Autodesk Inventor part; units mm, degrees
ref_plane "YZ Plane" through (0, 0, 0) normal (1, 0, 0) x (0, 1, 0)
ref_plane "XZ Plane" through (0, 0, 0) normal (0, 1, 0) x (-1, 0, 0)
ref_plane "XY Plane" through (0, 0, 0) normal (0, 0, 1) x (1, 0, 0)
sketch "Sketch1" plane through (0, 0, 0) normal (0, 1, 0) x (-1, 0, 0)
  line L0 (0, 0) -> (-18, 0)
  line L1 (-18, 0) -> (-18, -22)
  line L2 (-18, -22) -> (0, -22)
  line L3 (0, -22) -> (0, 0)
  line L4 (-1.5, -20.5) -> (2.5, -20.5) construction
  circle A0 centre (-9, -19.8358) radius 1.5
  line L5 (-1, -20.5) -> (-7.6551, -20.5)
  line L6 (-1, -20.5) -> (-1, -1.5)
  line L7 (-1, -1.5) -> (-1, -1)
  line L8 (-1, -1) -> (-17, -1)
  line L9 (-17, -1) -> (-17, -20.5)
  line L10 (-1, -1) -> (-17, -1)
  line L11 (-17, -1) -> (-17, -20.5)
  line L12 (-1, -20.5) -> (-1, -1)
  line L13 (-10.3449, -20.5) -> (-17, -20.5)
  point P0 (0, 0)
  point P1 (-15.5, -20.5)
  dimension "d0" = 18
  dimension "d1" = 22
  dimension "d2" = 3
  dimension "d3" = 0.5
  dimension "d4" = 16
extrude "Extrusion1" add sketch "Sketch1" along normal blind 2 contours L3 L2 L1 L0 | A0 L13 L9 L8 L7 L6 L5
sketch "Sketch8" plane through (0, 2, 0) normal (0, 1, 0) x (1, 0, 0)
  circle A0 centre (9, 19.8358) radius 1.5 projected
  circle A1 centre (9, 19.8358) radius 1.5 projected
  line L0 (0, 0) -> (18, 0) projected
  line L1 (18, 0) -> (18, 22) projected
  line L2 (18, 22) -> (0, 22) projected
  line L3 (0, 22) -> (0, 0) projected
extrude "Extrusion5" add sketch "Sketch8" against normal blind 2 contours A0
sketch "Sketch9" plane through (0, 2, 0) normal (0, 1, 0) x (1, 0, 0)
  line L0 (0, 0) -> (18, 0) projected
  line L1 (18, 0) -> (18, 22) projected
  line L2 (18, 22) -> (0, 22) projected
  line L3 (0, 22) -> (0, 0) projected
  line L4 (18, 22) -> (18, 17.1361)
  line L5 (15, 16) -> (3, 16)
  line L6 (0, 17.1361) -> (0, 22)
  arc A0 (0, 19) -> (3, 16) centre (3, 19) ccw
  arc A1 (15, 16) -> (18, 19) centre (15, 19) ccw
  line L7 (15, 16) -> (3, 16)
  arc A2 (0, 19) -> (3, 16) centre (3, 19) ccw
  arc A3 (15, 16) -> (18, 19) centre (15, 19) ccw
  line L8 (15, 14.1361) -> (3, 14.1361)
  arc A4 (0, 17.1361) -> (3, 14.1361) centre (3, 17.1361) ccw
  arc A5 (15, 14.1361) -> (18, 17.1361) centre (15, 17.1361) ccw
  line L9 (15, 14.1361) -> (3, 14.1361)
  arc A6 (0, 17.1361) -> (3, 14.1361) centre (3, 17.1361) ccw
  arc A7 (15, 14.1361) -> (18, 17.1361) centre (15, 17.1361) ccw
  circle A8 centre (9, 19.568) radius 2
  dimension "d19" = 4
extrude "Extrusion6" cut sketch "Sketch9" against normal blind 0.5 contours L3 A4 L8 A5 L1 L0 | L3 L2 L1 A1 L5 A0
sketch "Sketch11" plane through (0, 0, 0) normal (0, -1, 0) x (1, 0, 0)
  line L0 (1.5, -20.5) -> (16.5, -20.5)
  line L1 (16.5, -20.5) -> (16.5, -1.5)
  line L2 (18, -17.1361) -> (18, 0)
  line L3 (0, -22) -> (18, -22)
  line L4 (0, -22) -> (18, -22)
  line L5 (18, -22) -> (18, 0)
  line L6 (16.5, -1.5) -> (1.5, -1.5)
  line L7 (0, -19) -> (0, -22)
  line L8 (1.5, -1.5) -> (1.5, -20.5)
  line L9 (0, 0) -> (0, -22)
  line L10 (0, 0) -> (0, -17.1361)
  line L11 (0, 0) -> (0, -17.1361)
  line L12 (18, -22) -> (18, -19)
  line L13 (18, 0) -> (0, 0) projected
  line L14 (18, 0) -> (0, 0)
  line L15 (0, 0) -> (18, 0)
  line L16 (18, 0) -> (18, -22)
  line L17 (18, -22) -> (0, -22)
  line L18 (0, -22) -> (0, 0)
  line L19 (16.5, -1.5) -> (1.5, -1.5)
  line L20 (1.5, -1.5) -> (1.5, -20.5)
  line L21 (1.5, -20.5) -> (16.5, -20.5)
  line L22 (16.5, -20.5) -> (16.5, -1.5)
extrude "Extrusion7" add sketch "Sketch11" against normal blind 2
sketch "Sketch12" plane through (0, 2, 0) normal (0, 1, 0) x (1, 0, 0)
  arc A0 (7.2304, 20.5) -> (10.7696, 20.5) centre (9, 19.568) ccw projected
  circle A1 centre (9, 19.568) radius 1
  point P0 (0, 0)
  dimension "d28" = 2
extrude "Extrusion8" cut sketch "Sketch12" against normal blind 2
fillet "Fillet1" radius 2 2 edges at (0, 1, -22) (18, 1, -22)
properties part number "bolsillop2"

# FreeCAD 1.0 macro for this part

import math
import FreeCAD as App
import Part
import Sketcher

V = App.Vector


def edges_at(feature, points):
    """Names of the edges that pass closest to the given points."""
    edges = feature.Shape.Edges
    near = lambda p: min(range(len(edges)), key=lambda i: edges[i].distToShape(Part.Vertex(*p))[0])
    return sorted({f"Edge{near(p) + 1}" for p in points})

doc = App.newDocument("Part")
params = doc.addObject("Spreadsheet::Sheet", "Params")
for row, (alias, value) in enumerate([
    ("sketch1_diameter", "3 mm"),
    ("sketch1_width", "18 mm"),
    ("sketch1_height", "22 mm"),
    ("pad1_length", "2 mm"),
    ("sketch2_diameter", "3 mm"),
    ("pad2_length", "2 mm"),
    ("sketch3_diameter", "4 mm"),
    ("sketch3_radius", "3 mm"),
    ("sketch3_width", "18 mm"),
    ("sketch3_height", "3 mm"),
    ("pocket1_length", "0.5 mm"),
    ("sketch4_width", "18 mm"),
    ("sketch4_width2", "15 mm"),
    ("sketch4_height", "22 mm"),
    ("sketch4_height2", "19 mm"),
    ("pad3_length", "2 mm"),
    ("sketch5_diameter", "2 mm"),
    ("pocket2_length", "2 mm"),
    ("fillet_radius", "2 mm"),
], start=1):
    params.set(f"A{row}", alias)
    params.set(f"B{row}", "=" + value)
    params.setAlias(f"B{row}", alias)

body = doc.addObject("PartDesign::Body", "Body")

# Sketch on XZ plane
sketch1 = body.newObject("Sketcher::SketchObject", "Sketch")
sketch1.AttachmentSupport = (doc.getObject("XZ_Plane"), [""])
sketch1.MapMode = "FlatFace"
sketch1.addGeometry(Part.LineSegment(V(0, -22, 0), V(0, 0, 0)), False)
sketch1.addGeometry(Part.LineSegment(V(0, 0, 0), V(18, 0, 0)), False)
sketch1.addGeometry(Part.LineSegment(V(18, 0, 0), V(18, -22, 0)), False)
sketch1.addGeometry(Part.LineSegment(V(18, -22, 0), V(0, -22, 0)), False)
sketch1.addGeometry(Part.Circle(V(9, -19.8, 0), V(0, 0, 1), 1.5), False)
sketch1.addConstraint(Sketcher.Constraint("Coincident", 0, 2, 1, 1))
sketch1.addConstraint(Sketcher.Constraint("Coincident", 1, 2, 2, 1))
sketch1.addConstraint(Sketcher.Constraint("Coincident", 2, 2, 3, 1))
sketch1.addConstraint(Sketcher.Constraint("Coincident", 3, 2, 0, 1))
sketch1.addConstraint(Sketcher.Constraint("Vertical", 0))
sketch1.addConstraint(Sketcher.Constraint("Horizontal", 1))
sketch1.addConstraint(Sketcher.Constraint("Vertical", 2))
sketch1.addConstraint(Sketcher.Constraint("Horizontal", 3))
sketch1.addConstraint(Sketcher.Constraint("Coincident", 0, 2, -1, 1))
sketch1.addConstraint(Sketcher.Constraint("Diameter", 4, 3.0))
sketch1.addConstraint(Sketcher.Constraint("DistanceX", 1, 1, 1, 2, 18.0))
sketch1.addConstraint(Sketcher.Constraint("DistanceY", 0, 1, 0, 2, 22.0))
sketch1.addConstraint(Sketcher.Constraint("DistanceX", -1, 1, 4, 3, 9.0))
sketch1.addConstraint(Sketcher.Constraint("DistanceY", 4, 3, -1, 1, 19.8358))
sketch1.setExpression("Constraints[9]", "Params.sketch1_diameter")
sketch1.setExpression("Constraints[10]", "Params.sketch1_width")
sketch1.setExpression("Constraints[11]", "Params.sketch1_height")
pad1 = body.newObject("PartDesign::Pad", "Pad")
pad1.Profile = sketch1
pad1.setExpression("Length", "Params.pad1_length")
pad1.Reversed = True

# Sketch on XZ plane
sketch2 = body.newObject("Sketcher::SketchObject", "Sketch001")
sketch2.AttachmentSupport = (doc.getObject("XZ_Plane"), [""])
sketch2.MapMode = "FlatFace"
sketch2.AttachmentOffset = App.Placement(V(0, 0, -2), App.Rotation())
sketch2.addGeometry(Part.Circle(V(9, -19.8, 0), V(0, 0, 1), 1.5), False)
sketch2.addConstraint(Sketcher.Constraint("Diameter", 0, 3.0))
sketch2.addConstraint(Sketcher.Constraint("DistanceX", -1, 1, 0, 3, 9.0))
sketch2.addConstraint(Sketcher.Constraint("DistanceY", 0, 3, -1, 1, 19.8358))
sketch2.setExpression("Constraints[0]", "Params.sketch2_diameter")
pad2 = body.newObject("PartDesign::Pad", "Pad001")
pad2.Profile = sketch2
pad2.setExpression("Length", "Params.pad2_length")

# Sketch on XZ plane
sketch3 = body.newObject("Sketcher::SketchObject", "Sketch002")
sketch3.AttachmentSupport = (doc.getObject("XZ_Plane"), [""])
sketch3.MapMode = "FlatFace"
sketch3.AttachmentOffset = App.Placement(V(0, 0, -2), App.Rotation())
sketch3.addGeometry(Part.LineSegment(V(0, -17.1, 0), V(0, 0, 0)), False)
sketch3.addGeometry(Part.LineSegment(V(0, 0, 0), V(18, 0, 0)), False)
sketch3.addGeometry(Part.LineSegment(V(18, 0, 0), V(18, -17.1, 0)), False)
sketch3.addGeometry(Part.ArcOfCircle(Part.Circle(V(15, -17.1, 0), V(0, 0, 1), 3), math.radians(0), math.radians(90)), False)
sketch3.addGeometry(Part.LineSegment(V(15, -14.1, 0), V(3, -14.1, 0)), False)
sketch3.addGeometry(Part.ArcOfCircle(Part.Circle(V(3, -17.1, 0), V(0, 0, 1), 3), math.radians(90), math.radians(180)), False)
sketch3.addGeometry(Part.LineSegment(V(0, -22, 0), V(0, -19, 0)), False)
sketch3.addGeometry(Part.ArcOfCircle(Part.Circle(V(3, -19, 0), V(0, 0, 1), 3), math.radians(90), math.radians(180)), False)
sketch3.addGeometry(Part.LineSegment(V(3, -16, 0), V(15, -16, 0)), False)
sketch3.addGeometry(Part.ArcOfCircle(Part.Circle(V(15, -19, 0), V(0, 0, 1), 3), math.radians(0), math.radians(90)), False)
sketch3.addGeometry(Part.LineSegment(V(18, -19, 0), V(18, -22, 0)), False)
sketch3.addGeometry(Part.LineSegment(V(18, -22, 0), V(0, -22, 0)), False)
sketch3.addGeometry(Part.Circle(V(9, -19.6, 0), V(0, 0, 1), 2), False)
sketch3.addConstraint(Sketcher.Constraint("Coincident", 0, 2, 1, 1))
sketch3.addConstraint(Sketcher.Constraint("Coincident", 1, 2, 2, 1))
sketch3.addConstraint(Sketcher.Constraint("Tangent", 2, 2, 3, 1))
sketch3.addConstraint(Sketcher.Constraint("Tangent", 3, 2, 4, 1))
sketch3.addConstraint(Sketcher.Constraint("Tangent", 4, 2, 5, 1))
sketch3.addConstraint(Sketcher.Constraint("Tangent", 5, 2, 0, 1))
sketch3.addConstraint(Sketcher.Constraint("Tangent", 6, 2, 7, 2))
sketch3.addConstraint(Sketcher.Constraint("Tangent", 7, 1, 8, 1))
sketch3.addConstraint(Sketcher.Constraint("Tangent", 8, 2, 9, 2))
sketch3.addConstraint(Sketcher.Constraint("Tangent", 9, 1, 10, 1))
sketch3.addConstraint(Sketcher.Constraint("Coincident", 10, 2, 11, 1))
sketch3.addConstraint(Sketcher.Constraint("Coincident", 11, 2, 6, 1))
sketch3.addConstraint(Sketcher.Constraint("Vertical", 0))
sketch3.addConstraint(Sketcher.Constraint("Horizontal", 1))
sketch3.addConstraint(Sketcher.Constraint("Vertical", 2))
sketch3.addConstraint(Sketcher.Constraint("Horizontal", 4))
sketch3.addConstraint(Sketcher.Constraint("Vertical", 6))
sketch3.addConstraint(Sketcher.Constraint("Horizontal", 8))
sketch3.addConstraint(Sketcher.Constraint("Vertical", 10))
sketch3.addConstraint(Sketcher.Constraint("Horizontal", 11))
sketch3.addConstraint(Sketcher.Constraint("Coincident", 0, 2, -1, 1))
sketch3.addConstraint(Sketcher.Constraint("Equal", 3, 5))
sketch3.addConstraint(Sketcher.Constraint("Equal", 5, 7))
sketch3.addConstraint(Sketcher.Constraint("Equal", 7, 9))
sketch3.addConstraint(Sketcher.Constraint("PointOnObject", 6, 2, -2))
sketch3.addConstraint(Sketcher.Constraint("Vertical", 3, 3, 9, 3))
sketch3.addConstraint(Sketcher.Constraint("Diameter", 12, 4.0))
sketch3.addConstraint(Sketcher.Constraint("Radius", 3, 3.0))
sketch3.addConstraint(Sketcher.Constraint("DistanceX", 1, 1, 1, 2, 18.0))
sketch3.addConstraint(Sketcher.Constraint("DistanceY", 6, 1, 6, 2, 3.0))
sketch3.addConstraint(Sketcher.Constraint("DistanceY", 7, 3, -1, 1, 19.0))
sketch3.addConstraint(Sketcher.Constraint("DistanceX", -1, 1, 12, 3, 9.0))
sketch3.addConstraint(Sketcher.Constraint("DistanceY", 0, 1, 0, 2, 17.136))
sketch3.addConstraint(Sketcher.Constraint("DistanceY", 12, 3, -1, 1, 19.568))
sketch3.setExpression("Constraints[26]", "Params.sketch3_diameter")
sketch3.setExpression("Constraints[27]", "Params.sketch3_radius")
sketch3.setExpression("Constraints[28]", "Params.sketch3_width")
sketch3.setExpression("Constraints[29]", "Params.sketch3_height")
pocket1 = body.newObject("PartDesign::Pocket", "Pocket")
pocket1.Profile = sketch3
pocket1.setExpression("Length", "Params.pocket1_length")
pocket1.Reversed = True

# Sketch on XZ plane
sketch4 = body.newObject("Sketcher::SketchObject", "Sketch003")
sketch4.AttachmentSupport = (doc.getObject("XZ_Plane"), [""])
sketch4.MapMode = "FlatFace"
sketch4.addGeometry(Part.LineSegment(V(18, -22, 0), V(18, 0, 0)), False)
sketch4.addGeometry(Part.LineSegment(V(18, 0, 0), V(0, 0, 0)), False)
sketch4.addGeometry(Part.LineSegment(V(0, 0, 0), V(0, -22, 0)), False)
sketch4.addGeometry(Part.LineSegment(V(0, -22, 0), V(18, -22, 0)), False)
sketch4.addGeometry(Part.LineSegment(V(16, -20, 0), V(2, -20, 0)), False)
sketch4.addGeometry(Part.LineSegment(V(2, -20, 0), V(2, -2, 0)), False)
sketch4.addGeometry(Part.LineSegment(V(2, -2, 0), V(16, -2, 0)), False)
sketch4.addGeometry(Part.LineSegment(V(16, -2, 0), V(16, -20, 0)), False)
sketch4.addConstraint(Sketcher.Constraint("Coincident", 0, 2, 1, 1))
sketch4.addConstraint(Sketcher.Constraint("Coincident", 1, 2, 2, 1))
sketch4.addConstraint(Sketcher.Constraint("Coincident", 2, 2, 3, 1))
sketch4.addConstraint(Sketcher.Constraint("Coincident", 3, 2, 0, 1))
sketch4.addConstraint(Sketcher.Constraint("Coincident", 4, 2, 5, 1))
sketch4.addConstraint(Sketcher.Constraint("Coincident", 5, 2, 6, 1))
sketch4.addConstraint(Sketcher.Constraint("Coincident", 6, 2, 7, 1))
sketch4.addConstraint(Sketcher.Constraint("Coincident", 7, 2, 4, 1))
sketch4.addConstraint(Sketcher.Constraint("Vertical", 0))
sketch4.addConstraint(Sketcher.Constraint("Horizontal", 1))
sketch4.addConstraint(Sketcher.Constraint("Vertical", 2))
sketch4.addConstraint(Sketcher.Constraint("Horizontal", 3))
sketch4.addConstraint(Sketcher.Constraint("Horizontal", 4))
sketch4.addConstraint(Sketcher.Constraint("Vertical", 5))
sketch4.addConstraint(Sketcher.Constraint("Horizontal", 6))
sketch4.addConstraint(Sketcher.Constraint("Vertical", 7))
sketch4.addConstraint(Sketcher.Constraint("Coincident", 1, 2, -1, 1))
sketch4.addConstraint(Sketcher.Constraint("DistanceX", 1, 2, 1, 1, 18.0))
sketch4.addConstraint(Sketcher.Constraint("DistanceX", 4, 2, 4, 1, 15.0))
sketch4.addConstraint(Sketcher.Constraint("DistanceY", 0, 1, 0, 2, 22.0))
sketch4.addConstraint(Sketcher.Constraint("DistanceY", 5, 1, 5, 2, 19.0))
sketch4.addConstraint(Sketcher.Constraint("DistanceX", -1, 1, 4, 2, 1.5))
sketch4.addConstraint(Sketcher.Constraint("DistanceY", 4, 2, -1, 1, 20.5))
sketch4.setExpression("Constraints[17]", "Params.sketch4_width")
sketch4.setExpression("Constraints[18]", "Params.sketch4_width2")
sketch4.setExpression("Constraints[19]", "Params.sketch4_height")
sketch4.setExpression("Constraints[20]", "Params.sketch4_height2")
pad3 = body.newObject("PartDesign::Pad", "Pad002")
pad3.Profile = sketch4
pad3.setExpression("Length", "Params.pad3_length")
pad3.Reversed = True

# Sketch on XZ plane
sketch5 = body.newObject("Sketcher::SketchObject", "Sketch004")
sketch5.AttachmentSupport = (doc.getObject("XZ_Plane"), [""])
sketch5.MapMode = "FlatFace"
sketch5.AttachmentOffset = App.Placement(V(0, 0, -2), App.Rotation())
sketch5.addGeometry(Part.Circle(V(9, -19.6, 0), V(0, 0, 1), 1), False)
sketch5.addConstraint(Sketcher.Constraint("Diameter", 0, 2.0))
sketch5.addConstraint(Sketcher.Constraint("DistanceX", -1, 1, 0, 3, 9.0))
sketch5.addConstraint(Sketcher.Constraint("DistanceY", 0, 3, -1, 1, 19.568))
sketch5.setExpression("Constraints[0]", "Params.sketch5_diameter")
pocket2 = body.newObject("PartDesign::Pocket", "Pocket001")
pocket2.Profile = sketch5
pocket2.setExpression("Length", "Params.pocket2_length")
pocket2.Reversed = True
doc.recompute()

fillet = body.newObject("PartDesign::Fillet", "Fillet")
fillet.Base = (pocket2, edges_at(pocket2, [(0, 1, -22), (18, 1, -22)]))
fillet.setExpression("Radius", "Params.fillet_radius")

doc.recompute()
